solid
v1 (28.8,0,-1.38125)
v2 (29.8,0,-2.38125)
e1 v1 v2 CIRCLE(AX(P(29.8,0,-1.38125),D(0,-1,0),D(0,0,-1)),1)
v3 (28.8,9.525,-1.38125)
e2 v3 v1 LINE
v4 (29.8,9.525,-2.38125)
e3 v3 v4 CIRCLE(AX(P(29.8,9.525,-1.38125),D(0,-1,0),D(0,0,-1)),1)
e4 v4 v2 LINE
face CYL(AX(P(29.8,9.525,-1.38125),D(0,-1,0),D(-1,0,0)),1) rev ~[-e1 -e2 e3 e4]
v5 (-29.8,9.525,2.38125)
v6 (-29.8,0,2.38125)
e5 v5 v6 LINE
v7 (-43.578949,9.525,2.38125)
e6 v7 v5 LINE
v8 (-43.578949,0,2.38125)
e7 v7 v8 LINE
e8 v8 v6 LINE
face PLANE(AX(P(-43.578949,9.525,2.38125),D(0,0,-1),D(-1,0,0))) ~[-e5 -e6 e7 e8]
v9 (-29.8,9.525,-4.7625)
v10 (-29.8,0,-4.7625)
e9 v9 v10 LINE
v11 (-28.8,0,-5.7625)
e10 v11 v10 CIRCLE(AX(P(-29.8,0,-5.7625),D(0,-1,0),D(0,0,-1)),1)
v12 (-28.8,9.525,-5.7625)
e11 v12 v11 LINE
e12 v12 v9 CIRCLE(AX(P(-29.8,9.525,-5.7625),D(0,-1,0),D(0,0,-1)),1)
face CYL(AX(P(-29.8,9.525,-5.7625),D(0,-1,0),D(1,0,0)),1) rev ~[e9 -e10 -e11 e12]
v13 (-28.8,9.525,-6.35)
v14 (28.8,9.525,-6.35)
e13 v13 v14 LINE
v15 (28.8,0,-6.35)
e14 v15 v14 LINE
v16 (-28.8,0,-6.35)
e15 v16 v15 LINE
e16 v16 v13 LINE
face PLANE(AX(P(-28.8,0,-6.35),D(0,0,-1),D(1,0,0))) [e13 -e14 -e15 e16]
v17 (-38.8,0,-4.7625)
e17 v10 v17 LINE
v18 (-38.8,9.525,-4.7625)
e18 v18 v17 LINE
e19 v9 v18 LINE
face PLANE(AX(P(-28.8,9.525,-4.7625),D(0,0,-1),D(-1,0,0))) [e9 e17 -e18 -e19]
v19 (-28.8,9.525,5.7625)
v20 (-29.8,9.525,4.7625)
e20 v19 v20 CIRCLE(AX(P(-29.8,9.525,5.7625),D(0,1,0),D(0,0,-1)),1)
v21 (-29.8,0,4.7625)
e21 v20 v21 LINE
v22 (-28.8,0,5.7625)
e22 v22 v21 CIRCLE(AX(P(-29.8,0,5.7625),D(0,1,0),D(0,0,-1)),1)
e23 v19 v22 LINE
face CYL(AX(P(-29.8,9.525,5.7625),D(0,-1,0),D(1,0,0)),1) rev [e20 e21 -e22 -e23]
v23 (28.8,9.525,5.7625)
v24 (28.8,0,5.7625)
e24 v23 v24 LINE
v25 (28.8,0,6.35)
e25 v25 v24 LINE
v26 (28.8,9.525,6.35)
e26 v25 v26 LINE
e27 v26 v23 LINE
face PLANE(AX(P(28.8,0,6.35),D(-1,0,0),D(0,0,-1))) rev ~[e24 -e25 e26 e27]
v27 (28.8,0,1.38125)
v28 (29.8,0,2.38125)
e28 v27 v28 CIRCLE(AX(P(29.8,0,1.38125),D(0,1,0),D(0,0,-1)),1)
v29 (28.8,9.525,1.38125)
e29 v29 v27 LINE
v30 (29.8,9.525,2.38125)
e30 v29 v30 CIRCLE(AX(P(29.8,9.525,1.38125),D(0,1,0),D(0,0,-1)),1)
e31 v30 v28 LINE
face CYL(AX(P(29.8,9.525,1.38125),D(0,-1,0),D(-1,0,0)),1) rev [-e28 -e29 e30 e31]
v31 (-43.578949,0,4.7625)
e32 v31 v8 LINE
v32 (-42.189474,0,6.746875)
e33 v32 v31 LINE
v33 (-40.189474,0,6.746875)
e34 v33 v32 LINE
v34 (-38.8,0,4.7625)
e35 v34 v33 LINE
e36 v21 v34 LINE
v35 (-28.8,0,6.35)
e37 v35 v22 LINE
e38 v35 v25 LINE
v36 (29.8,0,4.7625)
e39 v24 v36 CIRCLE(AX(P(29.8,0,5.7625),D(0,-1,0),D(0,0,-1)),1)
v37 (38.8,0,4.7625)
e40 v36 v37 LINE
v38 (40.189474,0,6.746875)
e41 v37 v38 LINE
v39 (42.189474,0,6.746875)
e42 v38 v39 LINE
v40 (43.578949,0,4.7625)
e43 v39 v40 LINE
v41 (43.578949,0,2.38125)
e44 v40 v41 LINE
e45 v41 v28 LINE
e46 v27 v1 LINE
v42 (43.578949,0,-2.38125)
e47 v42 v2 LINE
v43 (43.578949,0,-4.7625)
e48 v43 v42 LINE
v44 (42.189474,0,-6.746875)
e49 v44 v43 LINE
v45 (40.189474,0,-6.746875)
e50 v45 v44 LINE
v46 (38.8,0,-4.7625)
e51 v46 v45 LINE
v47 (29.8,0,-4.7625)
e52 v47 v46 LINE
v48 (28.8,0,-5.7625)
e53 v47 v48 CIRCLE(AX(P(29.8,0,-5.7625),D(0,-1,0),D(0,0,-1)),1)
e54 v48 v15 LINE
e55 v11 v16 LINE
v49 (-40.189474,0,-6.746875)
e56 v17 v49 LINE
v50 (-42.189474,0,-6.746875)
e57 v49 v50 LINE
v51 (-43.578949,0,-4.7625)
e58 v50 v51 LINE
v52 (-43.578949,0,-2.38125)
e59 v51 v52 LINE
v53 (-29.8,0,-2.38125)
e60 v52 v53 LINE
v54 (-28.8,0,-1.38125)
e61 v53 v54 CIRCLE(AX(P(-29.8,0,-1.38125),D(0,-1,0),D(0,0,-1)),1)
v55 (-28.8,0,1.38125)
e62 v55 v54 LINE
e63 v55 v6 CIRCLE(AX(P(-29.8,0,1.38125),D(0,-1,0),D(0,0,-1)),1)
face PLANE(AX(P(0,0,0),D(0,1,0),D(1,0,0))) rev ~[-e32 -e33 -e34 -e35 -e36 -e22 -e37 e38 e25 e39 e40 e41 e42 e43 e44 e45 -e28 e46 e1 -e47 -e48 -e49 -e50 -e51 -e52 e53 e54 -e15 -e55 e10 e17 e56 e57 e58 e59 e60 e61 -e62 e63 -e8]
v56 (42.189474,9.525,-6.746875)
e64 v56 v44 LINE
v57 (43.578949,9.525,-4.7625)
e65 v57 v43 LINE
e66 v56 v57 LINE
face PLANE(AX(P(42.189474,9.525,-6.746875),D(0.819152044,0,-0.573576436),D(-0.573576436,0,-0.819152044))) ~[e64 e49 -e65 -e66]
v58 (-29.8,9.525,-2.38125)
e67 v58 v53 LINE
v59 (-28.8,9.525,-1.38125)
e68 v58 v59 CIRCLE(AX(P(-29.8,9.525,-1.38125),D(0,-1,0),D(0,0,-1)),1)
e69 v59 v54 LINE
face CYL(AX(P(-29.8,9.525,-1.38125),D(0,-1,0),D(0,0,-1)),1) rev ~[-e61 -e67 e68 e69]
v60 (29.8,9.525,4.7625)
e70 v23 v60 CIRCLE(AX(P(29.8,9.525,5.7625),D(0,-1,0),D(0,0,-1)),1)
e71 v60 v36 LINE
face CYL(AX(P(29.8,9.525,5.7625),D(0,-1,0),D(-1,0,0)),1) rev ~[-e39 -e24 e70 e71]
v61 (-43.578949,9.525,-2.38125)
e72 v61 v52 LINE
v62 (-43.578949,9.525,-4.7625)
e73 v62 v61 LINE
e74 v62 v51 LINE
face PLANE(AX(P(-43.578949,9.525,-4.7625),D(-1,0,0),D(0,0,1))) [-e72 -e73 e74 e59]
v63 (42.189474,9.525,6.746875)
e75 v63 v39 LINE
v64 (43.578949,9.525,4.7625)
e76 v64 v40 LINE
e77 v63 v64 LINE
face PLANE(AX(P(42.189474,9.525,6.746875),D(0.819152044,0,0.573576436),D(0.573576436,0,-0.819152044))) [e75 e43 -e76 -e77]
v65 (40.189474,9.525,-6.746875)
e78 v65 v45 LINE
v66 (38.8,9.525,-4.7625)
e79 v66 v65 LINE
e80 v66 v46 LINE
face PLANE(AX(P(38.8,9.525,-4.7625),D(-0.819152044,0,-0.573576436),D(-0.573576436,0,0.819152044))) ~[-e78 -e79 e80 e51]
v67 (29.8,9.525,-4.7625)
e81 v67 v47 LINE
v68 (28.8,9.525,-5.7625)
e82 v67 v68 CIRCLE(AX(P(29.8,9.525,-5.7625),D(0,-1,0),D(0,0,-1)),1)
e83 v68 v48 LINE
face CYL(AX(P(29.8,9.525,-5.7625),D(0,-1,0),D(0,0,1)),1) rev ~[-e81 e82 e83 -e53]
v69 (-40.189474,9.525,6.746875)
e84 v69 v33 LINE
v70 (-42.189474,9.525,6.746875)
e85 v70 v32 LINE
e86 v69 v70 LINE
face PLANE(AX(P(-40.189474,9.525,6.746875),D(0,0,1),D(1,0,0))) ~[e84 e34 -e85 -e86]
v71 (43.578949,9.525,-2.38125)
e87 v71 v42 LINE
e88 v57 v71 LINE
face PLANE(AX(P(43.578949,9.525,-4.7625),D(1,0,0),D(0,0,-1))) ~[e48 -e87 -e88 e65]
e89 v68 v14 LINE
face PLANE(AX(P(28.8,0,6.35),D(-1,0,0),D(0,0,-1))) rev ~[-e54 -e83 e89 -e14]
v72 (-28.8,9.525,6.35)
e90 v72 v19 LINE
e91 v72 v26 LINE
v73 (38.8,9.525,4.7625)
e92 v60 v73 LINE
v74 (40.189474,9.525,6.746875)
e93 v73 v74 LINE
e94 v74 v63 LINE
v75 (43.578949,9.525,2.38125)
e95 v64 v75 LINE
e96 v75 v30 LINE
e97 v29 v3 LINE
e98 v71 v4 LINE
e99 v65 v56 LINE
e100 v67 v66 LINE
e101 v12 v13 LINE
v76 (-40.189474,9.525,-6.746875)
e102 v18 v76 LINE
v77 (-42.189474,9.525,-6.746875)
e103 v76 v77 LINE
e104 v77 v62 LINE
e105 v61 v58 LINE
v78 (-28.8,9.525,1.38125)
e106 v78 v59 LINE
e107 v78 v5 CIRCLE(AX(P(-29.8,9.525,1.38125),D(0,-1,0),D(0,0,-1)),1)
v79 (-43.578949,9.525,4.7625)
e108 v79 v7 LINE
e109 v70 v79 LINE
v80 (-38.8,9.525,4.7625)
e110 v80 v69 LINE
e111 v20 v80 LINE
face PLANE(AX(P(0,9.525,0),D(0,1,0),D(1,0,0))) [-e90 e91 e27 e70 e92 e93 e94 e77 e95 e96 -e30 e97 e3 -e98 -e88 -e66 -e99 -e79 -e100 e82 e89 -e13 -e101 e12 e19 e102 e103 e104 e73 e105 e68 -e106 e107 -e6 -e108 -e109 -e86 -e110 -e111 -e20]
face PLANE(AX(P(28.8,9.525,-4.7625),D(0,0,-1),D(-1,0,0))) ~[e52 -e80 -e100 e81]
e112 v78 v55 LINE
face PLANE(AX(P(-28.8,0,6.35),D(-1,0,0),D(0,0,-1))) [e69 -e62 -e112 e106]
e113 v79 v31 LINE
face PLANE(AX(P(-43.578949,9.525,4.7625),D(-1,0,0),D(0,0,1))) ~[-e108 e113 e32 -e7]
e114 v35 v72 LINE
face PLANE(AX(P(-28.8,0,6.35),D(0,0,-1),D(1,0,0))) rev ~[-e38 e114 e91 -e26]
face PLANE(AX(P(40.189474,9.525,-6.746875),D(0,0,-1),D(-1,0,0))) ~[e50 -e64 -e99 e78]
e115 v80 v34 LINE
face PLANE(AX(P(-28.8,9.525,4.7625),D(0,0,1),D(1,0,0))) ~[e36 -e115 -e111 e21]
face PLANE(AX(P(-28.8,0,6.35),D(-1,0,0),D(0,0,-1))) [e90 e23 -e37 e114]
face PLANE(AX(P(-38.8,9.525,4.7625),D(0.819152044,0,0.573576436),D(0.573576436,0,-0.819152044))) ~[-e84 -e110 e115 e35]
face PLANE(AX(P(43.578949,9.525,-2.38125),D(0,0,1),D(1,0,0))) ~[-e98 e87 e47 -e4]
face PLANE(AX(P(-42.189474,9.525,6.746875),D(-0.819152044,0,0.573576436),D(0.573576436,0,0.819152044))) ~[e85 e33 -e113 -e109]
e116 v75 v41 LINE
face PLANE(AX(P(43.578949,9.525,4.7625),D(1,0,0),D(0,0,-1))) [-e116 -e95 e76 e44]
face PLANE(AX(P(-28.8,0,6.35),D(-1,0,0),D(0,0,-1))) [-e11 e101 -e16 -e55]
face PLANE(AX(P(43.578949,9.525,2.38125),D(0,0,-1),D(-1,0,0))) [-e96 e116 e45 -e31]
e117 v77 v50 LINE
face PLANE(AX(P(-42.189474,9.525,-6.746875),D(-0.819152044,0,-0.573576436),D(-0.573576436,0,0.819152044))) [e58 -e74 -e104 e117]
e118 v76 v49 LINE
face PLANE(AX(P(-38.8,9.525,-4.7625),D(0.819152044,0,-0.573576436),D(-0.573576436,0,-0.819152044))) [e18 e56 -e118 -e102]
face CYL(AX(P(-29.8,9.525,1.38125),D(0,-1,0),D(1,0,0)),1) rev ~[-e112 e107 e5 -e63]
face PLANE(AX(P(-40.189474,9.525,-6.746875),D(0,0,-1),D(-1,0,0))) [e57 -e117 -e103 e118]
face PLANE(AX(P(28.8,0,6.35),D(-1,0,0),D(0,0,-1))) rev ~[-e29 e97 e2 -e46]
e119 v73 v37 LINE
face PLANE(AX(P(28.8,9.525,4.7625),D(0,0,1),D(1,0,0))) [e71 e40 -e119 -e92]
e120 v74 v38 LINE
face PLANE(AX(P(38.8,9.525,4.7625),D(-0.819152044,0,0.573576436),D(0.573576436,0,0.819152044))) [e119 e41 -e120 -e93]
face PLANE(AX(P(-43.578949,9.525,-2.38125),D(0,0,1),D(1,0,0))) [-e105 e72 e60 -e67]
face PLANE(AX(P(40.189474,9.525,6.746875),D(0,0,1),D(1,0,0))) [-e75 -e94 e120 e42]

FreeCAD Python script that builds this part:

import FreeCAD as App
import Part
import Sketcher
from FreeCAD import Vector
Q = App.Units.Quantity


def edges_at(feature, points):
    """Names of the edges that pass closest to the given points."""
    edges = feature.Shape.Edges
    near = lambda p: min(range(len(edges)), key=lambda i: edges[i].distToShape(Part.Vertex(*p))[0])
    return sorted({f"Edge{near(p) + 1}" for p in points})

doc = App.newDocument("Part")
body = doc.addObject("PartDesign::Body", "Body")

sketch1 = body.newObject("Sketcher::SketchObject", "Sketch")
sketch1.AttachmentSupport = (doc.getObject("XZ_Plane"), [""])
sketch1.MapMode = "FlatFace"
sketch1.addGeometry(Part.LineSegment(Vector(-28.8, -6.35, 0), Vector(-28.8, 6.35, 0)), False)
sketch1.addGeometry(Part.LineSegment(Vector(-28.8, 6.35, 0), Vector(28.8, 6.35, 0)), False)
sketch1.addGeometry(Part.LineSegment(Vector(28.8, 6.35, 0), Vector(28.8, -6.35, 0)), False)
sketch1.addGeometry(Part.LineSegment(Vector(28.8, -6.35, 0), Vector(-28.8, -6.35, 0)), False)
sketch1.addConstraint(Sketcher.Constraint("Coincident", 0, 2, 1, 1))
sketch1.addConstraint(Sketcher.Constraint("Coincident", 1, 2, 2, 1))
sketch1.addConstraint(Sketcher.Constraint("Coincident", 2, 2, 3, 1))
sketch1.addConstraint(Sketcher.Constraint("Coincident", 3, 2, 0, 1))
sketch1.addConstraint(Sketcher.Constraint("Vertical", 0))
sketch1.addConstraint(Sketcher.Constraint("Horizontal", 1))
sketch1.addConstraint(Sketcher.Constraint("Vertical", 2))
sketch1.addConstraint(Sketcher.Constraint("Horizontal", 3))
sketch1.addConstraint(Sketcher.Constraint("Symmetric", 0, 2, 2, 2, -1, 1))
sketch1.addConstraint(Sketcher.Constraint("DistanceX", 1, 1, 1, 2, 57.6))
sketch1.addConstraint(Sketcher.Constraint("DistanceY", 0, 1, 0, 2, 12.7))
pad1 = body.newObject("PartDesign::Pad", "Pad")
pad1.Profile = sketch1
pad1.Length = 9.525
pad1.Reversed = True

sketch2 = body.newObject("Sketcher::SketchObject", "Sketch001")
sketch2.AttachmentSupport = (doc.getObject("XZ_Plane"), [""])
sketch2.MapMode = "FlatFace"
sketch2.AttachmentOffset = App.Placement(Vector(0, 0, -9.525), App.Rotation())
sketch2.addGeometry(Part.LineSegment(Vector(-28.8, -4.7625, 0), Vector(-38.8, -4.7625, 0)), False)
sketch2.addGeometry(Part.LineSegment(Vector(-38.8, -4.7625, 0), Vector(-40.189474, -6.746875, 0)), False)
sketch2.addGeometry(Part.LineSegment(Vector(-40.189474, -6.746875, 0), Vector(-42.189474, -6.746875, 0)), False)
sketch2.addGeometry(Part.LineSegment(Vector(-42.189474, -6.746875, 0), Vector(-43.578949, -4.7625, 0)), False)
sketch2.addGeometry(Part.LineSegment(Vector(-43.578949, -4.7625, 0), Vector(-43.578949, -2.38125, 0)), False)
sketch2.addGeometry(Part.LineSegment(Vector(-43.578949, -2.38125, 0), Vector(-28.8, -2.38125, 0)), False)
sketch2.addGeometry(Part.LineSegment(Vector(-28.8, -2.38125, 0), Vector(-28.8, -4.7625, 0)), False)
sketch2.addConstraint(Sketcher.Constraint("Coincident", 0, 2, 1, 1))
sketch2.addConstraint(Sketcher.Constraint("Coincident", 1, 2, 2, 1))
sketch2.addConstraint(Sketcher.Constraint("Coincident", 2, 2, 3, 1))
sketch2.addConstraint(Sketcher.Constraint("Coincident", 3, 2, 4, 1))
sketch2.addConstraint(Sketcher.Constraint("Coincident", 4, 2, 5, 1))
sketch2.addConstraint(Sketcher.Constraint("Coincident", 5, 2, 6, 1))
sketch2.addConstraint(Sketcher.Constraint("Coincident", 6, 2, 0, 1))
sketch2.addConstraint(Sketcher.Constraint("Horizontal", 0))
sketch2.addConstraint(Sketcher.Constraint("Horizontal", 2))
sketch2.addConstraint(Sketcher.Constraint("Vertical", 4))
sketch2.addConstraint(Sketcher.Constraint("Horizontal", 5))
sketch2.addConstraint(Sketcher.Constraint("Vertical", 6))
sketch2.addConstraint(Sketcher.Constraint("Horizontal", 0, 2, 3, 2))
sketch2.addConstraint(Sketcher.Constraint("Equal", 1, 3))
sketch2.addConstraint(Sketcher.Constraint("DistanceX", 0, 2, 0, 1, 10.0))
sketch2.addConstraint(Sketcher.Constraint("DistanceX", 2, 2, 2, 1, 2.0))
sketch2.addConstraint(Sketcher.Constraint("Angle", 1, Q("-125 deg")))
sketch2.addConstraint(Sketcher.Constraint("DistanceX", 0, 2, -1, 1, 38.8))
sketch2.addConstraint(Sketcher.Constraint("DistanceX", 5, 1, 5, 2, 14.778949))
sketch2.addConstraint(Sketcher.Constraint("DistanceY", 4, 1, 4, 2, 2.38125))
sketch2.addConstraint(Sketcher.Constraint("DistanceY", 0, 2, -1, 1, 4.7625))
pad2 = body.newObject("PartDesign::Pad", "Pad001")
pad2.Profile = sketch2
pad2.Length = 9.525
doc.recompute()

mirrored = body.newObject("PartDesign::Mirrored", "Mirrored")
mirrored.Originals = [pad2]
mirrored.MirrorPlane = (doc.getObject("YZ_Plane"), [""])
body.Tip = mirrored
doc.recompute()

mirrored2 = body.newObject("PartDesign::Mirrored", "Mirrored001")
mirrored2.Originals = [pad2]
mirrored2.MirrorPlane = (doc.getObject("XY_Plane"), [""])
body.Tip = mirrored2

sketch3 = body.newObject("Sketcher::SketchObject", "Sketch002")
sketch3.AttachmentSupport = (doc.getObject("XZ_Plane"), [""])
sketch3.MapMode = "FlatFace"
sketch3.AttachmentOffset = App.Placement(Vector(0, 0, -9.525), App.Rotation())
sketch3.addGeometry(Part.LineSegment(Vector(28.8, 4.7625, 0), Vector(38.8, 4.7625, 0)), False)
sketch3.addGeometry(Part.LineSegment(Vector(38.8, 4.7625, 0), Vector(40.189474, 6.746875, 0)), False)
sketch3.addGeometry(Part.LineSegment(Vector(40.189474, 6.746875, 0), Vector(42.189474, 6.746875, 0)), False)
sketch3.addGeometry(Part.LineSegment(Vector(42.189474, 6.746875, 0), Vector(43.578949, 4.7625, 0)), False)
sketch3.addGeometry(Part.LineSegment(Vector(43.578949, 4.7625, 0), Vector(43.578949, 2.38125, 0)), False)
sketch3.addGeometry(Part.LineSegment(Vector(43.578949, 2.38125, 0), Vector(28.8, 2.38125, 0)), False)
sketch3.addGeometry(Part.LineSegment(Vector(28.8, 2.38125, 0), Vector(28.8, 4.7625, 0)), False)
sketch3.addConstraint(Sketcher.Constraint("Coincident", 0, 2, 1, 1))
sketch3.addConstraint(Sketcher.Constraint("Coincident", 1, 2, 2, 1))
sketch3.addConstraint(Sketcher.Constraint("Coincident", 2, 2, 3, 1))
sketch3.addConstraint(Sketcher.Constraint("Coincident", 3, 2, 4, 1))
sketch3.addConstraint(Sketcher.Constraint("Coincident", 4, 2, 5, 1))
sketch3.addConstraint(Sketcher.Constraint("Coincident", 5, 2, 6, 1))
sketch3.addConstraint(Sketcher.Constraint("Coincident", 6, 2, 0, 1))
sketch3.addConstraint(Sketcher.Constraint("Horizontal", 0))
sketch3.addConstraint(Sketcher.Constraint("Horizontal", 2))
sketch3.addConstraint(Sketcher.Constraint("Vertical", 4))
sketch3.addConstraint(Sketcher.Constraint("Horizontal", 5))
sketch3.addConstraint(Sketcher.Constraint("Vertical", 6))
sketch3.addConstraint(Sketcher.Constraint("Horizontal", 0, 2, 3, 2))
sketch3.addConstraint(Sketcher.Constraint("Equal", 1, 3))
sketch3.addConstraint(Sketcher.Constraint("DistanceX", 0, 1, 0, 2, 10.0))
sketch3.addConstraint(Sketcher.Constraint("DistanceX", 2, 1, 2, 2, 2.0))
sketch3.addConstraint(Sketcher.Constraint("Angle", 1, Q("55 deg")))
sketch3.addConstraint(Sketcher.Constraint("DistanceX", -1, 1, 0, 2, 38.8))
sketch3.addConstraint(Sketcher.Constraint("DistanceX", 5, 2, 5, 1, 14.778949))
sketch3.addConstraint(Sketcher.Constraint("DistanceY", 4, 2, 4, 1, 2.38125))
sketch3.addConstraint(Sketcher.Constraint("DistanceY", -1, 1, 0, 2, 4.7625))
pad3 = body.newObject("PartDesign::Pad", "Pad002")
pad3.Profile = sketch3
pad3.Length = 9.525
doc.recompute()

fillet = body.newObject("PartDesign::Fillet", "Fillet")
fillet.Base = (pad3, edges_at(pad3, [
    (-28.8, 4.763, -4.763),
    (-28.8, 4.763, -2.381),
    (28.8, 4.763, -4.763),
    (28.8, 4.763, -2.381),
    (-28.8, 4.763, 4.763),
    (-28.8, 4.763, 2.381),
    (28.8, 4.763, 4.763),
    (28.8, 4.763, 2.381),
]))
fillet.Radius = 1

doc.recompute()
